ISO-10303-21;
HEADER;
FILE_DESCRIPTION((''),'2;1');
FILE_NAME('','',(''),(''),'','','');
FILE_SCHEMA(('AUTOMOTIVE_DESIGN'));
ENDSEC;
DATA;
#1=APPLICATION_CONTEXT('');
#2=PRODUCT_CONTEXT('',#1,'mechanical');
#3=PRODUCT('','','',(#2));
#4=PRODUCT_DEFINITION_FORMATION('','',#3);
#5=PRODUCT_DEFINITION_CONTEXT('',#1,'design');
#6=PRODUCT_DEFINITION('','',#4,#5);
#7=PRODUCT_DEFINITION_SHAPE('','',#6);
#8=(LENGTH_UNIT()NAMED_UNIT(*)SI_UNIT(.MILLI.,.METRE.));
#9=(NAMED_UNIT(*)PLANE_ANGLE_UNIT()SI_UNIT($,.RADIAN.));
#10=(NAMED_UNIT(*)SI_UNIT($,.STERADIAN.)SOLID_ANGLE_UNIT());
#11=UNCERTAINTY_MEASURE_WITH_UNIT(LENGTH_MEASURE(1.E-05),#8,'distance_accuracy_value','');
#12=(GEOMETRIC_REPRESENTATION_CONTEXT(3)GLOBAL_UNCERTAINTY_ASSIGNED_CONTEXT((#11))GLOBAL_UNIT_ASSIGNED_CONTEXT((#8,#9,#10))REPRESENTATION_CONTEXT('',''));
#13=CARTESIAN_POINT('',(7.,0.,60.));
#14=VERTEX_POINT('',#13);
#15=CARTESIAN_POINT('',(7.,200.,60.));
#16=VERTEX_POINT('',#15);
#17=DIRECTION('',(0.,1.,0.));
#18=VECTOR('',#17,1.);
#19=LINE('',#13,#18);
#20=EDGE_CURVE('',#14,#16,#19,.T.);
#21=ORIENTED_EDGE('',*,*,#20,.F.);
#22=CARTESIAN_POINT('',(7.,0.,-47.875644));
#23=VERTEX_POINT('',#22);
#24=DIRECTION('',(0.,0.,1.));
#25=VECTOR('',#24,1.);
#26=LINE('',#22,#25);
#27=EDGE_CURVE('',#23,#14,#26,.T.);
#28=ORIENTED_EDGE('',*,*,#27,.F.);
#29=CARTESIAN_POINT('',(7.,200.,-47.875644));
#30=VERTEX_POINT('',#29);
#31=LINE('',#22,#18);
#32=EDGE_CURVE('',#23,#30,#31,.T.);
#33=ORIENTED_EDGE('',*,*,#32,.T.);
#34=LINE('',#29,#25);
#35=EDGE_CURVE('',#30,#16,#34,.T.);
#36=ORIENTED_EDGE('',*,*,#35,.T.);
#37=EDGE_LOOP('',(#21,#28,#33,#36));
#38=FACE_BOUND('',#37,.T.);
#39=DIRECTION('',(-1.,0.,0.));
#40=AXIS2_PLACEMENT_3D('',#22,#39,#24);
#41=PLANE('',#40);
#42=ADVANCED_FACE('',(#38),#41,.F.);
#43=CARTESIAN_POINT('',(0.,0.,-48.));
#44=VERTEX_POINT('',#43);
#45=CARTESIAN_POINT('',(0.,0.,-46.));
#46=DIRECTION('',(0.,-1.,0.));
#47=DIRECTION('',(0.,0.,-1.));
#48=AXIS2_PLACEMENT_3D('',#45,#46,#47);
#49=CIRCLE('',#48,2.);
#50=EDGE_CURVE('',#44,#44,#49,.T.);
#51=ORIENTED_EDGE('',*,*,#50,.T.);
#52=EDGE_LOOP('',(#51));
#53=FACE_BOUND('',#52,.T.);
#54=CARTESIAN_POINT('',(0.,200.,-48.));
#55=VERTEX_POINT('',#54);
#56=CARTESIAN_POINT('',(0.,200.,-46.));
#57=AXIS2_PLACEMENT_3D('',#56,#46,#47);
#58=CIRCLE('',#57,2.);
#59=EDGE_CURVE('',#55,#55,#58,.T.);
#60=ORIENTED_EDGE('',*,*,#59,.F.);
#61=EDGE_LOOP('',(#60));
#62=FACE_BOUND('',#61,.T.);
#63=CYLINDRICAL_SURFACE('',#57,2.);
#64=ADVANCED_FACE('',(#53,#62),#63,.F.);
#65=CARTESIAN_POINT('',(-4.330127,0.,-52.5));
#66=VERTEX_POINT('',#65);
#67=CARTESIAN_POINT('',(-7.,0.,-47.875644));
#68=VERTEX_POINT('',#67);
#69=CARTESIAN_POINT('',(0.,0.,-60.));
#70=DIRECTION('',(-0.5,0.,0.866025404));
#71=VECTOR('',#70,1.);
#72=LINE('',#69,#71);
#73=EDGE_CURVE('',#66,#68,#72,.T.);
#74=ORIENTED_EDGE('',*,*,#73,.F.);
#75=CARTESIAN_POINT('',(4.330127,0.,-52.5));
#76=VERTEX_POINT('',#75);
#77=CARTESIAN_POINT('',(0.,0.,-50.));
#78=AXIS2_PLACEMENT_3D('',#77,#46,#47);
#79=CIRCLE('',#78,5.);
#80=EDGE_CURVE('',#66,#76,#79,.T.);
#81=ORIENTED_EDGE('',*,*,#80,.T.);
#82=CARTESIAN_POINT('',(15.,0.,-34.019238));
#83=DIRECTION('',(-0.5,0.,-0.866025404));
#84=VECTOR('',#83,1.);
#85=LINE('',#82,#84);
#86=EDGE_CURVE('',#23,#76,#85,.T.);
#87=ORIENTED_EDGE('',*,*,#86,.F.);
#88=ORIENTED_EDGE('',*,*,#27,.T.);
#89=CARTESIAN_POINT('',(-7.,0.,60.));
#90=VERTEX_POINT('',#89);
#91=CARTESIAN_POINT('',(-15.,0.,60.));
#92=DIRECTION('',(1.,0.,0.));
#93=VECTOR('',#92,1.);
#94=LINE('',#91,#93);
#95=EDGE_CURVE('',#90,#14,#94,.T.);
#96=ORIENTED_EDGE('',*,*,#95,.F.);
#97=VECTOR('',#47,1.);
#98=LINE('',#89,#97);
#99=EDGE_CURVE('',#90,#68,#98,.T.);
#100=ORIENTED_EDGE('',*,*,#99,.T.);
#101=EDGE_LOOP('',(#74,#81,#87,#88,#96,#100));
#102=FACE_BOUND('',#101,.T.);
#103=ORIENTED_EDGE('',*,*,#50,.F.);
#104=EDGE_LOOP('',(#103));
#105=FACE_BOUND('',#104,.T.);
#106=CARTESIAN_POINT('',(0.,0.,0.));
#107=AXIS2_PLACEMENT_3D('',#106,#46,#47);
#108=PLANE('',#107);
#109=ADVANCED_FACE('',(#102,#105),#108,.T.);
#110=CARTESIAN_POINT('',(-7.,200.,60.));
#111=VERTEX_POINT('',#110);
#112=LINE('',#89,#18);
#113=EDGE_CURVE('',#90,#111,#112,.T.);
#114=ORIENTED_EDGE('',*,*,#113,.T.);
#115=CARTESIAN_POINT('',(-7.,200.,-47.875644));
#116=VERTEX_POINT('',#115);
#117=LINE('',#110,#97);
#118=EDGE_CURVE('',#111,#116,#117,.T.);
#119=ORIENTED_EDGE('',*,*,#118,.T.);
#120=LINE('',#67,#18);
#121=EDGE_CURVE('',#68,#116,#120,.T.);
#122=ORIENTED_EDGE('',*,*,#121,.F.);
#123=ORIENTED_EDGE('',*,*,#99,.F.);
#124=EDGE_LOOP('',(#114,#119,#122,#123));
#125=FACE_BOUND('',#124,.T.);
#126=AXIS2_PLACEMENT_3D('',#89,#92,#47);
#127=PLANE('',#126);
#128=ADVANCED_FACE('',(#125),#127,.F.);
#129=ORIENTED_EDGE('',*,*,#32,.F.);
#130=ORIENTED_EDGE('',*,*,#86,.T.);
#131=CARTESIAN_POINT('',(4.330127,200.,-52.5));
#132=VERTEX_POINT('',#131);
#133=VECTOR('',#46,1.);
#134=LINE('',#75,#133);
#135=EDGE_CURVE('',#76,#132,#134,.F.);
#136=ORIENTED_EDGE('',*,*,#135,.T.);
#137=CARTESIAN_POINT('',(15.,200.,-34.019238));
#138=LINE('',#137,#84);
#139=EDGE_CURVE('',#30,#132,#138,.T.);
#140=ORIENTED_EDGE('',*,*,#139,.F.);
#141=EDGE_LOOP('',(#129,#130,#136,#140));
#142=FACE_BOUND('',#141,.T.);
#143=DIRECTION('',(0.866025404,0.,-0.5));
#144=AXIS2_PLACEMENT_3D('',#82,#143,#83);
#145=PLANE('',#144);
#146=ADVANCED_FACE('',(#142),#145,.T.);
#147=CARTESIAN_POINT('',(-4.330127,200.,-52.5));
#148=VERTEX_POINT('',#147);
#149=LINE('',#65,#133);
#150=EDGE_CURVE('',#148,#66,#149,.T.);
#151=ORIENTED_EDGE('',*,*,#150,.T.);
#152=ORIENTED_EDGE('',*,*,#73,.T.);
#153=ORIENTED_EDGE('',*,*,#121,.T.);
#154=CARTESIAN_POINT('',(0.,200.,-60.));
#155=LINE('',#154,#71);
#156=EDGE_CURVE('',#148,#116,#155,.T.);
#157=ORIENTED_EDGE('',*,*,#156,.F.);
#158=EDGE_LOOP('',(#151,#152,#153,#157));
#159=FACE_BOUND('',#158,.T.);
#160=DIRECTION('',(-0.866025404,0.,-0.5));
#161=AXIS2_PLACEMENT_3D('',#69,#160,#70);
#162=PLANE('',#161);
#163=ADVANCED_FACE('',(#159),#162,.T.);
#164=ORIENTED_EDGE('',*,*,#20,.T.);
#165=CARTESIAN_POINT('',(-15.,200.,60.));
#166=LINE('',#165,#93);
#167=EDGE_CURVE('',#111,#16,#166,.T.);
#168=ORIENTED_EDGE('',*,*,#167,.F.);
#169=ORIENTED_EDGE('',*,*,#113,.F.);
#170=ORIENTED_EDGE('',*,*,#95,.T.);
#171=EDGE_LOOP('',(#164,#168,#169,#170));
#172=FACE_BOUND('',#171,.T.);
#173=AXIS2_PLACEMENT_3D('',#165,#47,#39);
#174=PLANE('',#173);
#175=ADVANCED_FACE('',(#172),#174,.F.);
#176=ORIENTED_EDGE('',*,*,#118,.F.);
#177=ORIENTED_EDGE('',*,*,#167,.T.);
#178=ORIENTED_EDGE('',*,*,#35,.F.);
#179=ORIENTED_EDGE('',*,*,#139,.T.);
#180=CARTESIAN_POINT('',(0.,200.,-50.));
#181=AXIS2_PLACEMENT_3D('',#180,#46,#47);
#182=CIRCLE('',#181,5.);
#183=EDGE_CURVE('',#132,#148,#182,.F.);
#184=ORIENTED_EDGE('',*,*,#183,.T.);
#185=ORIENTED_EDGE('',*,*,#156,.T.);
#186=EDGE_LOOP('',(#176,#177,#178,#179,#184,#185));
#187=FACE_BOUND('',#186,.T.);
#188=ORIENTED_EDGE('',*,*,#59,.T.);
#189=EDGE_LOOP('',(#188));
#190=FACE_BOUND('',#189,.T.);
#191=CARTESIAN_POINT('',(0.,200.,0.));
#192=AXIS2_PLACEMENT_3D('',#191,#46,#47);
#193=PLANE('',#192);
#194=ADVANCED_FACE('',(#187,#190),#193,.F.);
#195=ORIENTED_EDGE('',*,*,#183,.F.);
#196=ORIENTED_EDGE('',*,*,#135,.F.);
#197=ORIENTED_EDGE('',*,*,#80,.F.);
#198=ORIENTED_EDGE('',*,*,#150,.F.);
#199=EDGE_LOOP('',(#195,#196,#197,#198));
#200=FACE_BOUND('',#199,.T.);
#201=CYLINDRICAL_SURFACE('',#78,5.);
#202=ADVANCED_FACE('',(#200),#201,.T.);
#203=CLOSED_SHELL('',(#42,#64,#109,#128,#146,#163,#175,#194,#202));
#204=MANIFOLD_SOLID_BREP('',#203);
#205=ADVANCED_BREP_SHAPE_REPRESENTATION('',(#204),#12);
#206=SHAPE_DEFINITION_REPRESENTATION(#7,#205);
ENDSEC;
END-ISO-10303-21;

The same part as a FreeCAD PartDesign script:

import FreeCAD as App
import Part
import Sketcher
Q = App.Units.Quantity


def edges_at(feature, points):
    """Names of the edges that pass closest to the given points."""
    edges = feature.Shape.Edges
    near = lambda p: min(range(len(edges)), key=lambda i: edges[i].distToShape(Part.Vertex(*p))[0])
    return sorted({f"Edge{near(p) + 1}" for p in points})


def add_polygon(sketch, points):
    """Adds a closed chain of lines whose ends are joined by coincident constraints."""
    first, n = sketch.GeometryCount, len(points)
    for a, b in zip(points, points[1:] + points[:1]):
        sketch.addGeometry(Part.LineSegment(App.Vector(*a, 0), App.Vector(*b, 0)), False)
    for i in range(n):
        sketch.addConstraint(Sketcher.Constraint("Coincident", first + i, 2, first + (i + 1) % n, 1))

doc = App.newDocument("Part")
body = doc.addObject("PartDesign::Body", "Body")

sketch1 = body.newObject("Sketcher::SketchObject", "Sketch")
sketch1.AttachmentSupport = (doc.getObject("XZ_Plane"), [""])
sketch1.MapMode = "FlatFace"
add_polygon(sketch1, [(-15, -60), (-15, 60), (15, 60), (15, -60)])
sketch1.addConstraint([
    Sketcher.Constraint("Vertical", 0),
    Sketcher.Constraint("Horizontal", 1),
    Sketcher.Constraint("Vertical", 2),
    Sketcher.Constraint("Horizontal", 3),
    Sketcher.Constraint("Symmetric", 0, 2, 2, 2, -1, 1),
    Sketcher.Constraint("DistanceX", 1, 1, 1, 2, Q("30 mm")),
    Sketcher.Constraint("DistanceY", 0, 1, 0, 2, Q("120 mm")),
])
pad1 = body.newObject("PartDesign::Pad", "Pad")
pad1.Profile = sketch1
pad1.Length = 200
pad1.Reversed = True

sketch2 = body.newObject("Sketcher::SketchObject", "Sketch001")
sketch2.AttachmentSupport = (doc.getObject("XZ_Plane"), [""])
sketch2.MapMode = "FlatFace"
sketch2.AttachmentOffset = App.Placement(App.Vector(0, 0, -200), App.Rotation())
add_polygon(sketch2, [(-40, -85), (-40, 85), (40, 85), (40, -85)])
add_polygon(sketch2, [(-15, -34), (0, -60), (15, -34), (15, 60), (-15, 60)])
sketch2.addConstraint([
    Sketcher.Constraint("Vertical", 0),
    Sketcher.Constraint("Horizontal", 1),
    Sketcher.Constraint("Vertical", 2),
    Sketcher.Constraint("Horizontal", 3),
    Sketcher.Constraint("Vertical", 6),
    Sketcher.Constraint("Horizontal", 7),
    Sketcher.Constraint("Vertical", 8),
    Sketcher.Constraint("Symmetric", 0, 2, 2, 2, -1, 1),
    Sketcher.Constraint("Symmetric", 5, 2, 8, 2, -2),
    Sketcher.Constraint("PointOnObject", 4, 2, -2),
    Sketcher.Constraint("DistanceX", 7, 2, 7, 1, Q("30 mm")),
    Sketcher.Constraint("Angle", 4, Q("-60 deg")),
    Sketcher.Constraint("DistanceY", 4, 2, -1, 1, Q("60 mm")),
    Sketcher.Constraint("DistanceY", -1, 1, 6, 2, Q("60 mm")),
    Sketcher.Constraint("DistanceX", 1, 1, 1, 2, Q("79.032 mm")),
    Sketcher.Constraint("DistanceY", 0, 1, 0, 2, Q("169.032 mm")),
])
pocket1 = body.newObject("PartDesign::Pocket", "Pocket")
pocket1.Profile = sketch2
pocket1.Type = "ThroughAll"
pocket1.Reversed = True
doc.recompute()

fillet = body.newObject("PartDesign::Fillet", "Fillet")
fillet.Base = (pocket1, edges_at(pocket1, [(0, 100, -60)]))
fillet.Radius = 5

sketch3 = body.newObject("Sketcher::SketchObject", "Sketch002")
sketch3.AttachmentSupport = (doc.getObject("XZ_Plane"), [""])
sketch3.MapMode = "FlatFace"
sketch3.AttachmentOffset = App.Placement(App.Vector(0, 0, -200), App.Rotation())
add_polygon(sketch3, [(-15, -34), (-15, 60), (-7, 60), (-7, -48)])
add_polygon(sketch3, [(7, -48), (7, 60), (15, 60), (15, -34)])
sketch3.addConstraint([
    Sketcher.Constraint("Vertical", 0),
    Sketcher.Constraint("Horizontal", 1),
    Sketcher.Constraint("Vertical", 2),
    Sketcher.Constraint("Vertical", 4),
    Sketcher.Constraint("Horizontal", 5),
    Sketcher.Constraint("Vertical", 6),
    Sketcher.Constraint("Symmetric", 1, 2, 4, 2, -2),
    Sketcher.Constraint("Symmetric", 3, 2, 6, 2, -2),
    Sketcher.Constraint("Horizontal", 2, 2, 7, 2),
    Sketcher.Constraint("DistanceX", 1, 1, 1, 2, Q("8 mm")),
    Sketcher.Constraint("Angle", 3, Q("120 deg")),
    Sketcher.Constraint("DistanceX", 0, 2, -1, 1, Q("15 mm")),
    Sketcher.Constraint("DistanceY", -1, 1, 0, 2, Q("60 mm")),
    Sketcher.Constraint("DistanceY", 0, 1, 0, 2, Q("94.019238 mm")),
])
pocket2 = body.newObject("PartDesign::Pocket", "Pocket001")
pocket2.Profile = sketch3
pocket2.Type = "ThroughAll"
pocket2.Reversed = True

sketch4 = body.newObject("Sketcher::SketchObject", "Sketch003")
sketch4.AttachmentSupport = (doc.getObject("XZ_Plane"), [""])
sketch4.MapMode = "FlatFace"
sketch4.addGeometry(Part.Circle(App.Vector(0, -46, 0), App.Vector(0, 0, 1), 2), False)
sketch4.addConstraint([
    Sketcher.Constraint("PointOnObject", 0, 3, -2),
    Sketcher.Constraint("Diameter", 0, Q("4 mm")),
    Sketcher.Constraint("DistanceY", 0, 3, -1, 1, Q("46 mm")),
])
pocket3 = body.newObject("PartDesign::Pocket", "Pocket002")
pocket3.Profile = sketch4
pocket3.Type = "ThroughAll"

doc.recompute()
